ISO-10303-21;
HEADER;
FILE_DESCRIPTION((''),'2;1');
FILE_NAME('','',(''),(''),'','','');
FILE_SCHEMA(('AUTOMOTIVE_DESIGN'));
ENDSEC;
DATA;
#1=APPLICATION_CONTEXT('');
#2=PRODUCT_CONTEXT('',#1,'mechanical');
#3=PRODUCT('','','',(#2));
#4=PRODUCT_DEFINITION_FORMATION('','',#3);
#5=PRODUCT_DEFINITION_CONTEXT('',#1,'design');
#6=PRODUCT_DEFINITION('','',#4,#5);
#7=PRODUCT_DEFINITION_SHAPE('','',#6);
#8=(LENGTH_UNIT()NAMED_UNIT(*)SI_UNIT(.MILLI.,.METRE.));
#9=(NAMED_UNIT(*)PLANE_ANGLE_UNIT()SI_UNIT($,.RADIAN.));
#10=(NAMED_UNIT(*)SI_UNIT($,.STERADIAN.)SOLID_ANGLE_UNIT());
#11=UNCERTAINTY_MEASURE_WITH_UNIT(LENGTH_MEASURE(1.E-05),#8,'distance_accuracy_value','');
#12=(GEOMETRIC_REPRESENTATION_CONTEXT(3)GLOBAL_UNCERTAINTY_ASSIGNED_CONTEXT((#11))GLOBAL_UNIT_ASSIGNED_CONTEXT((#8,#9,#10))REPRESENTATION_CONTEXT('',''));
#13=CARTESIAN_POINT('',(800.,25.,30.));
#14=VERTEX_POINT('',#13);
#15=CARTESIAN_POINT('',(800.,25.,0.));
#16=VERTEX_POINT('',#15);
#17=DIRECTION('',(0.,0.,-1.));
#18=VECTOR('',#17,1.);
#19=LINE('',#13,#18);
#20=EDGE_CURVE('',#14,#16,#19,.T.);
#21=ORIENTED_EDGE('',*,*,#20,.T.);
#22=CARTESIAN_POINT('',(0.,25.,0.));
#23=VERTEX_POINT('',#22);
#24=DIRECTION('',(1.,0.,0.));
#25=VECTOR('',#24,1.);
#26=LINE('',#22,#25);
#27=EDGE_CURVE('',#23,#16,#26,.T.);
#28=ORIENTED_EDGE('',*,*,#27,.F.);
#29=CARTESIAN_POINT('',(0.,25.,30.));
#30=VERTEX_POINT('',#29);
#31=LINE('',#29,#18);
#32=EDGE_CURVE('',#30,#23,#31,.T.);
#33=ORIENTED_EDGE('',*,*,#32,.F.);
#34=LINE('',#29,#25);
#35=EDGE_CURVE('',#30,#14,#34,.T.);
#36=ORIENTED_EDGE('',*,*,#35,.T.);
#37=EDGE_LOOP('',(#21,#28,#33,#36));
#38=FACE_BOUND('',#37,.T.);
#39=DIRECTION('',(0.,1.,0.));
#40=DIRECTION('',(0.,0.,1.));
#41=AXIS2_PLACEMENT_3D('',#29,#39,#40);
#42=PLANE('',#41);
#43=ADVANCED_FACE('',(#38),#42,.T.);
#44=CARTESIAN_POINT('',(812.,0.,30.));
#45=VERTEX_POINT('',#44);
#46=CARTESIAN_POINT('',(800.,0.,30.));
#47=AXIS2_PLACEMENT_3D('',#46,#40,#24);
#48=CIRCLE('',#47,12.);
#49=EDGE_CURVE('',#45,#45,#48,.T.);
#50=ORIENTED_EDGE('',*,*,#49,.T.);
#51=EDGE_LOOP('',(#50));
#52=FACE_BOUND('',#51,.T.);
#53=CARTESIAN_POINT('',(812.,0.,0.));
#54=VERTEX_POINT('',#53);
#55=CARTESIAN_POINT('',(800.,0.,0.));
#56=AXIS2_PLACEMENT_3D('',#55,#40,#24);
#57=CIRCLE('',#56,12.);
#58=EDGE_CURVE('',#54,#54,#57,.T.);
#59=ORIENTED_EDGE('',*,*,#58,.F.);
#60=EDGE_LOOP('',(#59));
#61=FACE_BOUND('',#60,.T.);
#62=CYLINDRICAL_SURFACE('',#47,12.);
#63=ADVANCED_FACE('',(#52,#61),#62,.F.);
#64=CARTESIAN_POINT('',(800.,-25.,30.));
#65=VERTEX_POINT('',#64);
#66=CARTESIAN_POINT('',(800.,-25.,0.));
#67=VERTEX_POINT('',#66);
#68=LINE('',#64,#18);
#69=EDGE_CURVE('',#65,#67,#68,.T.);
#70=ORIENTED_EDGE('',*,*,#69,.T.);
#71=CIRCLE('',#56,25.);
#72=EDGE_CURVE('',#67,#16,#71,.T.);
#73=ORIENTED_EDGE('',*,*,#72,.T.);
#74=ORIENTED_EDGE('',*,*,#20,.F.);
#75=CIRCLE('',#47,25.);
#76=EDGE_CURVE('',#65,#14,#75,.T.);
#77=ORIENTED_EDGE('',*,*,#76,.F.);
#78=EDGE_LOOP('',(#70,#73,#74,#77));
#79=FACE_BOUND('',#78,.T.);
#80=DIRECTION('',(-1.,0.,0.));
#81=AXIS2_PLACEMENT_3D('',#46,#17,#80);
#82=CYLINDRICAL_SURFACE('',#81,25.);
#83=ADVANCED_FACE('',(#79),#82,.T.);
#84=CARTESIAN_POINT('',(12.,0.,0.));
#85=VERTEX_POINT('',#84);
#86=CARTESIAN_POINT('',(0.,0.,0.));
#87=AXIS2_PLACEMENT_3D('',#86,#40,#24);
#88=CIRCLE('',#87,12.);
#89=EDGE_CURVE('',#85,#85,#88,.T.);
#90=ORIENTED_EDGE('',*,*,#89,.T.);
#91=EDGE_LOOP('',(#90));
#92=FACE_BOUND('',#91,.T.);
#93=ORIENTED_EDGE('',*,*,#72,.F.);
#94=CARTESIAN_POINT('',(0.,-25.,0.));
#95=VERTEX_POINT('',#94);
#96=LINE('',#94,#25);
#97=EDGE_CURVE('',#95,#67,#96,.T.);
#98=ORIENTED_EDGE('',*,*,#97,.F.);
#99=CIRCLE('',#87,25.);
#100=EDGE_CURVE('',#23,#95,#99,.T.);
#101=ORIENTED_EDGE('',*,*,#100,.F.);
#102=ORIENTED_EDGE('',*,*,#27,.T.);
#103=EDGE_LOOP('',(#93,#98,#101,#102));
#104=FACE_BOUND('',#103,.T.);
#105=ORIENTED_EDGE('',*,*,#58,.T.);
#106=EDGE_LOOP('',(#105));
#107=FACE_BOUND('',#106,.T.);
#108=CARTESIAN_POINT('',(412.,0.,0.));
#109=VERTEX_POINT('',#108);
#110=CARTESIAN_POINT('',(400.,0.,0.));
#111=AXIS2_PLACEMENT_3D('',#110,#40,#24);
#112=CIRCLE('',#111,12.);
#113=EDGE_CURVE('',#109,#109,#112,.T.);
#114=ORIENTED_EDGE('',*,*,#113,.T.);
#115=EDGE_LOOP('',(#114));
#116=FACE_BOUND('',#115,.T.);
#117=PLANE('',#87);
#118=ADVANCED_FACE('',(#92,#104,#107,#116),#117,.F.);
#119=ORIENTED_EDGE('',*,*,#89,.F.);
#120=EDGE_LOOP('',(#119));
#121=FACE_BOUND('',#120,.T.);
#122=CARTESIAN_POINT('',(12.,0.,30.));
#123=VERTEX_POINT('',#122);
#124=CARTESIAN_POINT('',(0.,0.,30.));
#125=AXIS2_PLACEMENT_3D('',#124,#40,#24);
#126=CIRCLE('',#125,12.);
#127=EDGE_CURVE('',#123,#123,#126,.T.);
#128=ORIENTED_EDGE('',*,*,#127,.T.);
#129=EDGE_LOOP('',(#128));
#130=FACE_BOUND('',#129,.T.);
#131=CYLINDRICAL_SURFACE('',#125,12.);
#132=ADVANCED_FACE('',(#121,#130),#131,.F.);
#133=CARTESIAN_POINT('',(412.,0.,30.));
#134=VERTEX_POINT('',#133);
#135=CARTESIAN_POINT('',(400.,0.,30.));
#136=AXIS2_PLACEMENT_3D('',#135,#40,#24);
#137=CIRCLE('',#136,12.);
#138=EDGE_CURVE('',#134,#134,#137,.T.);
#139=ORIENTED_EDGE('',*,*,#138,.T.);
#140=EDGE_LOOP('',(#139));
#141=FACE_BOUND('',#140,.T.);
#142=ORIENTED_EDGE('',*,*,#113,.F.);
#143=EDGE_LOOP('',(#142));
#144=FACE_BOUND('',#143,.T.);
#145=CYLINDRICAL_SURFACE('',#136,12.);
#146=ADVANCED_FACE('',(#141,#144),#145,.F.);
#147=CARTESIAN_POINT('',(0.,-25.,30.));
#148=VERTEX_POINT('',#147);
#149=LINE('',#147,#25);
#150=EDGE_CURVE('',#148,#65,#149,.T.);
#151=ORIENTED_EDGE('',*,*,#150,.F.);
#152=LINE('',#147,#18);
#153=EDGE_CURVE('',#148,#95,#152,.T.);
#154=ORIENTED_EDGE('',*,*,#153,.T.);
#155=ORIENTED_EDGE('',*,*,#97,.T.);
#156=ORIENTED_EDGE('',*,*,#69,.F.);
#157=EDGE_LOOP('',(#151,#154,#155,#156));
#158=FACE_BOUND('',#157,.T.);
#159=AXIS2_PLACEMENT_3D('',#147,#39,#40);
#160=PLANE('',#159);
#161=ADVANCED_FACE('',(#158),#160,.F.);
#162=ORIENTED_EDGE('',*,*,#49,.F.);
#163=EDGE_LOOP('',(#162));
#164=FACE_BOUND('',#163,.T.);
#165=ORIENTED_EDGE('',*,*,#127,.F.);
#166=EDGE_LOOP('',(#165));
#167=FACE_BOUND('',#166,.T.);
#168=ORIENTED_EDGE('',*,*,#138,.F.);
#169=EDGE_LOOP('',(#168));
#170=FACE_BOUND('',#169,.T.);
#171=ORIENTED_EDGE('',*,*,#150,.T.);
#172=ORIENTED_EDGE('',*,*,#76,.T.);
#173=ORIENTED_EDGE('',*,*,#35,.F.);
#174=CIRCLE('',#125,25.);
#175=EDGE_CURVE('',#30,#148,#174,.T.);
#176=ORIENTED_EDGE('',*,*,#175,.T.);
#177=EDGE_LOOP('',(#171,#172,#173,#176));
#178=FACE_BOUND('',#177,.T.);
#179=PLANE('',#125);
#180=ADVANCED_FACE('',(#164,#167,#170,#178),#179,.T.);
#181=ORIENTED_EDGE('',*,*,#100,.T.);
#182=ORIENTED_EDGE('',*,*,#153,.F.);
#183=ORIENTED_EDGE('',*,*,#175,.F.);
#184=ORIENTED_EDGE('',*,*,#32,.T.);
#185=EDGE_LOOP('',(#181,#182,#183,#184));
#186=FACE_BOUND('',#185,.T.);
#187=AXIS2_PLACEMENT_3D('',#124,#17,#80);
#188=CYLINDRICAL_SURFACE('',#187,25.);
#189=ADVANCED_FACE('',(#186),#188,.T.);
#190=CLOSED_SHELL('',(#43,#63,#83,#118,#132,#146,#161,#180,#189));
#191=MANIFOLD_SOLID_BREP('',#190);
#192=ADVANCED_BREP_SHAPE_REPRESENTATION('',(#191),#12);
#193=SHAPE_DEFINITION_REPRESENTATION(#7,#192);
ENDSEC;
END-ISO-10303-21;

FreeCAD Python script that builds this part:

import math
import FreeCAD as App
import Part
import Sketcher

doc = App.newDocument("Part")
body = doc.addObject("PartDesign::Body", "Body")

sketch1 = body.newObject("Sketcher::SketchObject", "Sketch")
sketch1.AttachmentSupport = (doc.getObject("XY_Plane"), [""])
sketch1.MapMode = "FlatFace"
sketch1.addGeometry([
    Part.LineSegment(App.Vector(800, 25, 0), App.Vector(0, 25, 0)),
    Part.ArcOfCircle(Part.Circle(App.Vector(0, 0, 0), App.Vector(0, 0, 1), 25), math.radians(90), math.radians(270)),
    Part.LineSegment(App.Vector(0, -25, 0), App.Vector(800, -25, 0)),
    Part.ArcOfCircle(Part.Circle(App.Vector(800, 0, 0), App.Vector(0, 0, 1), 25), math.radians(-90), math.radians(90)),
], False)
sketch1.addConstraint([
    Sketcher.Constraint("Tangent", 0, 2, 1, 1),
    Sketcher.Constraint("Tangent", 1, 2, 2, 1),
    Sketcher.Constraint("Tangent", 2, 2, 3, 1),
    Sketcher.Constraint("Tangent", 3, 2, 0, 1),
    Sketcher.Constraint("Horizontal", 0),
    Sketcher.Constraint("Horizontal", 2),
    Sketcher.Constraint("Coincident", 1, 3, -1, 1),
    Sketcher.Constraint("Radius", 1, 25.0),
    Sketcher.Constraint("DistanceX", 0, 2, 0, 1, 800.0),
])
pad1 = body.newObject("PartDesign::Pad", "Pad")
pad1.Profile = sketch1
pad1.Length = 30

sketch2 = body.newObject("Sketcher::SketchObject", "Sketch001")
sketch2.AttachmentSupport = (doc.getObject("XY_Plane"), [""])
sketch2.MapMode = "FlatFace"
sketch2.AttachmentOffset = App.Placement(App.Vector(0, 0, 30), App.Rotation())
sketch2.addGeometry([
    Part.Circle(App.Vector(0, 0, 0), App.Vector(0, 0, 1), 12),
    Part.Circle(App.Vector(800, 0, 0), App.Vector(0, 0, 1), 12),
    Part.Circle(App.Vector(400, 0, 0), App.Vector(0, 0, 1), 12),
], False)
sketch2.addConstraint([
    Sketcher.Constraint("Coincident", 0, 3, -1, 1),
    Sketcher.Constraint("Equal", 0, 1),
    Sketcher.Constraint("Equal", 1, 2),
    Sketcher.Constraint("PointOnObject", 1, 3, -1),
    Sketcher.Constraint("PointOnObject", 2, 3, -1),
    Sketcher.Constraint("Diameter", 0, 24.0),
    Sketcher.Constraint("DistanceX", -1, 1, 1, 3, 800.0),
    Sketcher.Constraint("DistanceX", -1, 1, 2, 3, 400.0),
])
doc.recompute()
hole = body.newObject("PartDesign::Hole", "Hole")
hole.Profile = sketch2
hole.ThreadType = "None"
hole.Diameter = 24
hole.DepthType = "ThroughAll"

doc.recompute()
